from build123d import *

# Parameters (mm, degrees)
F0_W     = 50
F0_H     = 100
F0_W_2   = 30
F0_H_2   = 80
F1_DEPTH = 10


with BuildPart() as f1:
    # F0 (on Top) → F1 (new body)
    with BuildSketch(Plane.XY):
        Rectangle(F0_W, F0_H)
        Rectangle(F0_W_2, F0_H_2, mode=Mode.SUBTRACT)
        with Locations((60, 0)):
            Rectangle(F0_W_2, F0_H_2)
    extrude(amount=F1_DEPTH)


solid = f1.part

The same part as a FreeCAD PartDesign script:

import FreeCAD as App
import Part
import Sketcher
Q = App.Units.Quantity

doc = App.newDocument("Part")
body = doc.addObject("PartDesign::Body", "Body")
body.AllowCompound = True

# Sketch on XY plane
sketch1 = body.newObject("Sketcher::SketchObject", "Sketch")
sketch1.AttachmentSupport = (doc.getObject("XY_Plane"), [""])
sketch1.MapMode = "FlatFace"
sketch1.addGeometry([
    Part.LineSegment(App.Vector(-25, 50, 0), App.Vector(-25, -50, 0)),  # 0
    Part.LineSegment(App.Vector(-25, -50, 0), App.Vector(25, -50, 0)),  # 1
    Part.LineSegment(App.Vector(25, -50, 0), App.Vector(25, 50, 0)),  # 2
    Part.LineSegment(App.Vector(25, 50, 0), App.Vector(-25, 50, 0)),  # 3
    Part.LineSegment(App.Vector(15, -40, 0), App.Vector(-15, -40, 0)),  # 4
    Part.LineSegment(App.Vector(-15, -40, 0), App.Vector(-15, 40, 0)),  # 5
    Part.LineSegment(App.Vector(-15, 40, 0), App.Vector(15, 40, 0)),  # 6
    Part.LineSegment(App.Vector(15, 40, 0), App.Vector(15, -40, 0)),  # 7
    Part.LineSegment(App.Vector(45, 40, 0), App.Vector(45, -40, 0)),  # 8
    Part.LineSegment(App.Vector(45, -40, 0), App.Vector(75, -40, 0)),  # 9
    Part.LineSegment(App.Vector(75, -40, 0), App.Vector(75, 40, 0)),  # 10
    Part.LineSegment(App.Vector(75, 40, 0), App.Vector(45, 40, 0)),  # 11
], False)
sketch1.addConstraint([
    Sketcher.Constraint("Coincident", 0, 2, 1, 1),
    Sketcher.Constraint("Coincident", 1, 2, 2, 1),
    Sketcher.Constraint("Coincident", 2, 2, 3, 1),
    Sketcher.Constraint("Coincident", 3, 2, 0, 1),
    Sketcher.Constraint("Coincident", 4, 2, 5, 1),
    Sketcher.Constraint("Coincident", 5, 2, 6, 1),
    Sketcher.Constraint("Coincident", 6, 2, 7, 1),
    Sketcher.Constraint("Coincident", 7, 2, 4, 1),
    Sketcher.Constraint("Coincident", 8, 2, 9, 1),
    Sketcher.Constraint("Coincident", 9, 2, 10, 1),
    Sketcher.Constraint("Coincident", 10, 2, 11, 1),
    Sketcher.Constraint("Coincident", 11, 2, 8, 1),
    Sketcher.Constraint("Vertical", 0),
    Sketcher.Constraint("Horizontal", 1),
    Sketcher.Constraint("Vertical", 2),
    Sketcher.Constraint("Horizontal", 3),
    Sketcher.Constraint("Horizontal", 4),
    Sketcher.Constraint("Vertical", 5),
    Sketcher.Constraint("Horizontal", 6),
    Sketcher.Constraint("Vertical", 7),
    Sketcher.Constraint("Vertical", 8),
    Sketcher.Constraint("Horizontal", 9),
    Sketcher.Constraint("Vertical", 10),
    Sketcher.Constraint("Horizontal", 11),
    Sketcher.Constraint("Symmetric", 0, 2, 2, 2, -1, 1),
    Sketcher.Constraint("Symmetric", 4, 2, 6, 2, -1, 1),
    Sketcher.Constraint("Horizontal", 7, 2, 8, 2),
    Sketcher.Constraint("Horizontal", 6, 2, 10, 2),
    Sketcher.Constraint("Equal", 6, 9),
    Sketcher.Constraint("DistanceX", 1, 1, 1, 2, Q("50 mm")),
    Sketcher.Constraint("DistanceX", 4, 2, 4, 1, Q("30 mm")),
    Sketcher.Constraint("DistanceY", 0, 2, 0, 1, Q("100 mm")),
    Sketcher.Constraint("DistanceY", 5, 1, 5, 2, Q("80 mm")),
    Sketcher.Constraint("DistanceX", -1, 1, 8, 2, Q("45 mm")),
])
pad1 = body.newObject("PartDesign::Pad", "Pad")
pad1.Profile = sketch1
pad1.Length = 10

doc.recompute()
